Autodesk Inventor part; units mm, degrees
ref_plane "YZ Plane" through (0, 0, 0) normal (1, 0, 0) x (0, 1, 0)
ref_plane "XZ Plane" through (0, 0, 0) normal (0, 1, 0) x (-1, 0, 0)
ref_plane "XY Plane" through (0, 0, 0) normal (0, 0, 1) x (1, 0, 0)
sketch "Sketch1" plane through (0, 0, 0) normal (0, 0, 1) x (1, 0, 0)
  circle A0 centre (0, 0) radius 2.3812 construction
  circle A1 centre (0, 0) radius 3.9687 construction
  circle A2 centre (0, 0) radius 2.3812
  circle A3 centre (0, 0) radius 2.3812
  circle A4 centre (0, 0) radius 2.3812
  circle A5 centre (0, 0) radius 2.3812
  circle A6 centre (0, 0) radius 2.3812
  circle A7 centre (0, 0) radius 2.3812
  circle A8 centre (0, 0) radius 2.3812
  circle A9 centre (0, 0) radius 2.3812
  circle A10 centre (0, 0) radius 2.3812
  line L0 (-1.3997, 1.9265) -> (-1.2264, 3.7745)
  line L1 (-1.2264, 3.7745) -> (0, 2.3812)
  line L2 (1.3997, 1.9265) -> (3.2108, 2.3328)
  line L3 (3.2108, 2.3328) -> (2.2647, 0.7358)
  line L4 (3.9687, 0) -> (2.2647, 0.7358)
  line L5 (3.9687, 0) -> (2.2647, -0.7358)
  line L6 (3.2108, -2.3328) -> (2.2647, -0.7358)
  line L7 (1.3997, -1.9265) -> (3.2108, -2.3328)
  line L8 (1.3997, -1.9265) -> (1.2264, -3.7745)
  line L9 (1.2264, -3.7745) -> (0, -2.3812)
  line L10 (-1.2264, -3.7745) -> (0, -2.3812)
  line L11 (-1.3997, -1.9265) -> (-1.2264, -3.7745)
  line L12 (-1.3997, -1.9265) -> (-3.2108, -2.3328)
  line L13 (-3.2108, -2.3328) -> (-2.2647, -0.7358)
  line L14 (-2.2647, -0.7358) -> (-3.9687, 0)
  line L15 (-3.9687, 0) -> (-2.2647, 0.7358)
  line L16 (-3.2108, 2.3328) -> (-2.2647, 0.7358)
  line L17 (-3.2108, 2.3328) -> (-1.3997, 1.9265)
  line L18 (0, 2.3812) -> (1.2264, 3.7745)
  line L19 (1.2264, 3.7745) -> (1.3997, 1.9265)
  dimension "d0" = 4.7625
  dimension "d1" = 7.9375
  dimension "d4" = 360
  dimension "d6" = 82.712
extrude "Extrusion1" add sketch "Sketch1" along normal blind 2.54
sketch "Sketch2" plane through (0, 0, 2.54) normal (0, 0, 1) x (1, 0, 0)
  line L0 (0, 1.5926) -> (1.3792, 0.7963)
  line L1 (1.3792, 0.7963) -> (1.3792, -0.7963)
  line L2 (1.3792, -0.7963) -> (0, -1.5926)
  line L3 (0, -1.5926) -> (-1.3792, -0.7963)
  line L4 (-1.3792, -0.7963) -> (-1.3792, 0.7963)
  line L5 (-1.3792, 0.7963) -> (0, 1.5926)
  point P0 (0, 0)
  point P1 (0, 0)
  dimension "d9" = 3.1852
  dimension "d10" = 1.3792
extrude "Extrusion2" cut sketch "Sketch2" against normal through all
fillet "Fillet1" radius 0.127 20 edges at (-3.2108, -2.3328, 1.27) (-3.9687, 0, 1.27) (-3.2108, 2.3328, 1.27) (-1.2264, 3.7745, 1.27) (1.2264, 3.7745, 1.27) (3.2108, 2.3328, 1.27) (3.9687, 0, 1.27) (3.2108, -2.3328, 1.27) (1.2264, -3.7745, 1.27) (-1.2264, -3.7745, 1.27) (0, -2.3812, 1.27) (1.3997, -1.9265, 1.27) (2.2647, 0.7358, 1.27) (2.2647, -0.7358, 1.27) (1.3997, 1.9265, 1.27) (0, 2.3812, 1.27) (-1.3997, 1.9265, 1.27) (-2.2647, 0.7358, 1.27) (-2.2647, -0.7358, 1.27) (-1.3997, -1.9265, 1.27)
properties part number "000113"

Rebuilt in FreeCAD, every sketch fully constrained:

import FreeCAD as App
import Part
import Sketcher
Q = App.Units.Quantity


def edges_at(feature, points):
    """Names of the edges that pass closest to the given points."""
    edges = feature.Shape.Edges
    near = lambda p: min(range(len(edges)), key=lambda i: edges[i].distToShape(Part.Vertex(*p))[0])
    return sorted({f"Edge{near(p) + 1}" for p in points})

doc = App.newDocument("Part")
body = doc.addObject("PartDesign::Body", "Body")

sketch1 = doc.addObject("Sketcher::SketchObject", "Sketch")
body.addObject(sketch1)
sketch1.AttachmentSupport = (doc.XY_Plane, [""])
sketch1.MapMode = "FlatFace"
sketch1.addGeometry([
    Part.LineSegment(App.Vector(2.2647, -0.7358, 0), App.Vector(3.9687, 0, 0)),
    Part.LineSegment(App.Vector(3.9687, 0, 0), App.Vector(2.2647, 0.7358, 0)),
    Part.LineSegment(App.Vector(2.2647, 0.7358, 0), App.Vector(3.2108, 2.3328, 0)),
    Part.LineSegment(App.Vector(3.2108, 2.3328, 0), App.Vector(1.3997, 1.9265, 0)),
    Part.LineSegment(App.Vector(1.3997, 1.9265, 0), App.Vector(1.2264, 3.7745, 0)),
    Part.LineSegment(App.Vector(1.2264, 3.7745, 0), App.Vector(0, 2.3812, 0)),
    Part.LineSegment(App.Vector(0, 2.3812, 0), App.Vector(-1.2264, 3.7745, 0)),
    Part.LineSegment(App.Vector(-1.2264, 3.7745, 0), App.Vector(-1.3997, 1.9265, 0)),
    Part.LineSegment(App.Vector(-1.3997, 1.9265, 0), App.Vector(-3.2108, 2.3328, 0)),
    Part.LineSegment(App.Vector(-3.2108, 2.3328, 0), App.Vector(-2.2647, 0.7358, 0)),
    Part.LineSegment(App.Vector(-2.2647, 0.7358, 0), App.Vector(-3.9687, 0, 0)),
    Part.LineSegment(App.Vector(-3.9687, 0, 0), App.Vector(-2.2647, -0.7358, 0)),
    Part.LineSegment(App.Vector(-2.2647, -0.7358, 0), App.Vector(-3.2108, -2.3328, 0)),
    Part.LineSegment(App.Vector(-3.2108, -2.3328, 0), App.Vector(-1.3997, -1.9265, 0)),
    Part.LineSegment(App.Vector(-1.3997, -1.9265, 0), App.Vector(-1.2264, -3.7745, 0)),
    Part.LineSegment(App.Vector(-1.2264, -3.7745, 0), App.Vector(0, -2.3812, 0)),
    Part.LineSegment(App.Vector(0, -2.3812, 0), App.Vector(1.2264, -3.7745, 0)),
    Part.LineSegment(App.Vector(1.2264, -3.7745, 0), App.Vector(1.3997, -1.9265, 0)),
    Part.LineSegment(App.Vector(1.3997, -1.9265, 0), App.Vector(3.2108, -2.3328, 0)),
    Part.LineSegment(App.Vector(3.2108, -2.3328, 0), App.Vector(2.2647, -0.7358, 0)),
], False)
sketch1.addConstraint([
    Sketcher.Constraint("Coincident", 0, 2, 1, 1),
    Sketcher.Constraint("Coincident", 1, 2, 2, 1),
    Sketcher.Constraint("Coincident", 2, 2, 3, 1),
    Sketcher.Constraint("Coincident", 3, 2, 4, 1),
    Sketcher.Constraint("Coincident", 4, 2, 5, 1),
    Sketcher.Constraint("Coincident", 5, 2, 6, 1),
    Sketcher.Constraint("Coincident", 6, 2, 7, 1),
    Sketcher.Constraint("Coincident", 7, 2, 8, 1),
    Sketcher.Constraint("Coincident", 8, 2, 9, 1),
    Sketcher.Constraint("Coincident", 9, 2, 10, 1),
    Sketcher.Constraint("Coincident", 10, 2, 11, 1),
    Sketcher.Constraint("Coincident", 11, 2, 12, 1),
    Sketcher.Constraint("Coincident", 12, 2, 13, 1),
    Sketcher.Constraint("Coincident", 13, 2, 14, 1),
    Sketcher.Constraint("Coincident", 14, 2, 15, 1),
    Sketcher.Constraint("Coincident", 15, 2, 16, 1),
    Sketcher.Constraint("Coincident", 16, 2, 17, 1),
    Sketcher.Constraint("Coincident", 17, 2, 18, 1),
    Sketcher.Constraint("Coincident", 18, 2, 19, 1),
    Sketcher.Constraint("Coincident", 19, 2, 0, 1),
    Sketcher.Constraint("Symmetric", 0, 2, 10, 2, -1, 1),
    Sketcher.Constraint("Symmetric", 1, 2, 11, 2, -1, 1),
    Sketcher.Constraint("Symmetric", 2, 2, 12, 2, -1, 1),
    Sketcher.Constraint("Symmetric", 3, 2, 13, 2, -1, 1),
    Sketcher.Constraint("Symmetric", 4, 2, 14, 2, -1, 1),
    Sketcher.Constraint("Symmetric", 5, 2, 15, 2, -1, 1),
    Sketcher.Constraint("Symmetric", 6, 2, 16, 2, -1, 1),
    Sketcher.Constraint("Symmetric", 7, 2, 17, 2, -1, 1),
    Sketcher.Constraint("Symmetric", 8, 2, 18, 2, -1, 1),
    Sketcher.Constraint("Symmetric", 9, 2, 19, 2, -1, 1),
    Sketcher.Constraint("Symmetric", 4, 2, 6, 2, -2),
    Sketcher.Constraint("Symmetric", 3, 2, 7, 2, -2),
    Sketcher.Constraint("Symmetric", 2, 2, 8, 2, -2),
    Sketcher.Constraint("Symmetric", 1, 2, 9, 2, -2),
    Sketcher.Constraint("PointOnObject", 0, 2, -1),
    Sketcher.Constraint("PointOnObject", 5, 2, -2),
    Sketcher.Constraint("Equal", 1, 2),
    Sketcher.Constraint("Equal", 2, 3),
    Sketcher.Constraint("Equal", 3, 4),
    Sketcher.Constraint("Equal", 4, 5),
    Sketcher.Constraint("DistanceX", -1, 1, 0, 2, Q("0.156248 in")),
    Sketcher.Constraint("DistanceY", -1, 1, 5, 2, Q("0.093748 in")),
    Sketcher.Constraint("DistanceY", 1, 2, 3, 2, Q("0.046878 in")),
    Sketcher.Constraint("DistanceY", 3, 2, 2, 2, Q("0.016 in")),
    Sketcher.Constraint("DistanceX", 4, 2, 2, 2, Q("0.078126 in")),
    Sketcher.Constraint("DistanceX", -1, 1, 2, 2, Q("0.1264 in")),
])
pad1 = doc.addObject("PartDesign::Pad", "Pad")
body.addObject(pad1)
pad1.Profile = sketch1
pad1.Length = Q("0.1 in")

sketch2 = doc.addObject("Sketcher::SketchObject", "Sketch001")
body.addObject(sketch2)
sketch2.AttachmentSupport = (doc.XY_Plane, [""])
sketch2.MapMode = "FlatFace"
sketch2.AttachmentOffset = App.Placement(App.Vector(0, 0, 0.1 * 25.4), App.Rotation())
sketch2.addGeometry([
    Part.LineSegment(App.Vector(1.3792, 0.7963, 0), App.Vector(0, 1.5926, 0)),
    Part.LineSegment(App.Vector(0, 1.5926, 0), App.Vector(-1.3792, 0.7963, 0)),
    Part.LineSegment(App.Vector(-1.3792, 0.7963, 0), App.Vector(-1.3792, -0.7963, 0)),
    Part.LineSegment(App.Vector(-1.3792, -0.7963, 0), App.Vector(0, -1.5926, 0)),
    Part.LineSegment(App.Vector(0, -1.5926, 0), App.Vector(1.3792, -0.7963, 0)),
    Part.LineSegment(App.Vector(1.3792, -0.7963, 0), App.Vector(1.3792, 0.7963, 0)),
], False)
sketch2.addConstraint([
    Sketcher.Constraint("Coincident", 0, 2, 1, 1),
    Sketcher.Constraint("Coincident", 1, 2, 2, 1),
    Sketcher.Constraint("Coincident", 2, 2, 3, 1),
    Sketcher.Constraint("Coincident", 3, 2, 4, 1),
    Sketcher.Constraint("Coincident", 4, 2, 5, 1),
    Sketcher.Constraint("Coincident", 5, 2, 0, 1),
    Sketcher.Constraint("Vertical", 2),
    Sketcher.Constraint("Vertical", 5),
    Sketcher.Constraint("Symmetric", 0, 2, 3, 2, -1, 1),
    Sketcher.Constraint("Symmetric", 1, 2, 4, 2, -1, 1),
    Sketcher.Constraint("PointOnObject", 0, 2, -2),
    Sketcher.Constraint("Parallel", 0, 3),
    Sketcher.Constraint("Horizontal", 2, 2, 4, 2),
    Sketcher.Constraint("Angle", 0, Q("149.9994 deg")),
    Sketcher.Constraint("DistanceX", 1, 2, -1, 1, Q("0.0543 in")),
    Sketcher.Constraint("DistanceY", 3, 2, 0, 2, Q("0.1254 in")),
])
pocket1 = doc.addObject("PartDesign::Pocket", "Pocket")
body.addObject(pocket1)
pocket1.Profile = sketch2
pocket1.Type = "ThroughAll"
doc.recompute()

fillet = doc.addObject("PartDesign::Fillet", "Fillet")
body.addObject(fillet)
fillet.Base = (pocket1, edges_at(pocket1, [
    (-3.211, -2.333, 1.27),
    (-3.969, 0, 1.27),
    (-3.211, 2.333, 1.27),
    (-1.226, 3.775, 1.27),
    (1.226, 3.775, 1.27),
    (3.211, 2.333, 1.27),
    (3.969, 0, 1.27),
    (3.211, -2.333, 1.27),
    (1.226, -3.775, 1.27),
    (-1.226, -3.775, 1.27),
    (0, -2.381, 1.27),
    (1.4, -1.927, 1.27),
    (2.265, 0.736, 1.27),
    (2.265, -0.736, 1.27),
    (1.4, 1.927, 1.27),
    (0, 2.381, 1.27),
    (-1.4, 1.927, 1.27),
    (-2.265, 0.736, 1.27),
    (-2.265, -0.736, 1.27),
    (-1.4, -1.927, 1.27),
]))
fillet.Radius = Q("0.005 in")

doc.recompute()
